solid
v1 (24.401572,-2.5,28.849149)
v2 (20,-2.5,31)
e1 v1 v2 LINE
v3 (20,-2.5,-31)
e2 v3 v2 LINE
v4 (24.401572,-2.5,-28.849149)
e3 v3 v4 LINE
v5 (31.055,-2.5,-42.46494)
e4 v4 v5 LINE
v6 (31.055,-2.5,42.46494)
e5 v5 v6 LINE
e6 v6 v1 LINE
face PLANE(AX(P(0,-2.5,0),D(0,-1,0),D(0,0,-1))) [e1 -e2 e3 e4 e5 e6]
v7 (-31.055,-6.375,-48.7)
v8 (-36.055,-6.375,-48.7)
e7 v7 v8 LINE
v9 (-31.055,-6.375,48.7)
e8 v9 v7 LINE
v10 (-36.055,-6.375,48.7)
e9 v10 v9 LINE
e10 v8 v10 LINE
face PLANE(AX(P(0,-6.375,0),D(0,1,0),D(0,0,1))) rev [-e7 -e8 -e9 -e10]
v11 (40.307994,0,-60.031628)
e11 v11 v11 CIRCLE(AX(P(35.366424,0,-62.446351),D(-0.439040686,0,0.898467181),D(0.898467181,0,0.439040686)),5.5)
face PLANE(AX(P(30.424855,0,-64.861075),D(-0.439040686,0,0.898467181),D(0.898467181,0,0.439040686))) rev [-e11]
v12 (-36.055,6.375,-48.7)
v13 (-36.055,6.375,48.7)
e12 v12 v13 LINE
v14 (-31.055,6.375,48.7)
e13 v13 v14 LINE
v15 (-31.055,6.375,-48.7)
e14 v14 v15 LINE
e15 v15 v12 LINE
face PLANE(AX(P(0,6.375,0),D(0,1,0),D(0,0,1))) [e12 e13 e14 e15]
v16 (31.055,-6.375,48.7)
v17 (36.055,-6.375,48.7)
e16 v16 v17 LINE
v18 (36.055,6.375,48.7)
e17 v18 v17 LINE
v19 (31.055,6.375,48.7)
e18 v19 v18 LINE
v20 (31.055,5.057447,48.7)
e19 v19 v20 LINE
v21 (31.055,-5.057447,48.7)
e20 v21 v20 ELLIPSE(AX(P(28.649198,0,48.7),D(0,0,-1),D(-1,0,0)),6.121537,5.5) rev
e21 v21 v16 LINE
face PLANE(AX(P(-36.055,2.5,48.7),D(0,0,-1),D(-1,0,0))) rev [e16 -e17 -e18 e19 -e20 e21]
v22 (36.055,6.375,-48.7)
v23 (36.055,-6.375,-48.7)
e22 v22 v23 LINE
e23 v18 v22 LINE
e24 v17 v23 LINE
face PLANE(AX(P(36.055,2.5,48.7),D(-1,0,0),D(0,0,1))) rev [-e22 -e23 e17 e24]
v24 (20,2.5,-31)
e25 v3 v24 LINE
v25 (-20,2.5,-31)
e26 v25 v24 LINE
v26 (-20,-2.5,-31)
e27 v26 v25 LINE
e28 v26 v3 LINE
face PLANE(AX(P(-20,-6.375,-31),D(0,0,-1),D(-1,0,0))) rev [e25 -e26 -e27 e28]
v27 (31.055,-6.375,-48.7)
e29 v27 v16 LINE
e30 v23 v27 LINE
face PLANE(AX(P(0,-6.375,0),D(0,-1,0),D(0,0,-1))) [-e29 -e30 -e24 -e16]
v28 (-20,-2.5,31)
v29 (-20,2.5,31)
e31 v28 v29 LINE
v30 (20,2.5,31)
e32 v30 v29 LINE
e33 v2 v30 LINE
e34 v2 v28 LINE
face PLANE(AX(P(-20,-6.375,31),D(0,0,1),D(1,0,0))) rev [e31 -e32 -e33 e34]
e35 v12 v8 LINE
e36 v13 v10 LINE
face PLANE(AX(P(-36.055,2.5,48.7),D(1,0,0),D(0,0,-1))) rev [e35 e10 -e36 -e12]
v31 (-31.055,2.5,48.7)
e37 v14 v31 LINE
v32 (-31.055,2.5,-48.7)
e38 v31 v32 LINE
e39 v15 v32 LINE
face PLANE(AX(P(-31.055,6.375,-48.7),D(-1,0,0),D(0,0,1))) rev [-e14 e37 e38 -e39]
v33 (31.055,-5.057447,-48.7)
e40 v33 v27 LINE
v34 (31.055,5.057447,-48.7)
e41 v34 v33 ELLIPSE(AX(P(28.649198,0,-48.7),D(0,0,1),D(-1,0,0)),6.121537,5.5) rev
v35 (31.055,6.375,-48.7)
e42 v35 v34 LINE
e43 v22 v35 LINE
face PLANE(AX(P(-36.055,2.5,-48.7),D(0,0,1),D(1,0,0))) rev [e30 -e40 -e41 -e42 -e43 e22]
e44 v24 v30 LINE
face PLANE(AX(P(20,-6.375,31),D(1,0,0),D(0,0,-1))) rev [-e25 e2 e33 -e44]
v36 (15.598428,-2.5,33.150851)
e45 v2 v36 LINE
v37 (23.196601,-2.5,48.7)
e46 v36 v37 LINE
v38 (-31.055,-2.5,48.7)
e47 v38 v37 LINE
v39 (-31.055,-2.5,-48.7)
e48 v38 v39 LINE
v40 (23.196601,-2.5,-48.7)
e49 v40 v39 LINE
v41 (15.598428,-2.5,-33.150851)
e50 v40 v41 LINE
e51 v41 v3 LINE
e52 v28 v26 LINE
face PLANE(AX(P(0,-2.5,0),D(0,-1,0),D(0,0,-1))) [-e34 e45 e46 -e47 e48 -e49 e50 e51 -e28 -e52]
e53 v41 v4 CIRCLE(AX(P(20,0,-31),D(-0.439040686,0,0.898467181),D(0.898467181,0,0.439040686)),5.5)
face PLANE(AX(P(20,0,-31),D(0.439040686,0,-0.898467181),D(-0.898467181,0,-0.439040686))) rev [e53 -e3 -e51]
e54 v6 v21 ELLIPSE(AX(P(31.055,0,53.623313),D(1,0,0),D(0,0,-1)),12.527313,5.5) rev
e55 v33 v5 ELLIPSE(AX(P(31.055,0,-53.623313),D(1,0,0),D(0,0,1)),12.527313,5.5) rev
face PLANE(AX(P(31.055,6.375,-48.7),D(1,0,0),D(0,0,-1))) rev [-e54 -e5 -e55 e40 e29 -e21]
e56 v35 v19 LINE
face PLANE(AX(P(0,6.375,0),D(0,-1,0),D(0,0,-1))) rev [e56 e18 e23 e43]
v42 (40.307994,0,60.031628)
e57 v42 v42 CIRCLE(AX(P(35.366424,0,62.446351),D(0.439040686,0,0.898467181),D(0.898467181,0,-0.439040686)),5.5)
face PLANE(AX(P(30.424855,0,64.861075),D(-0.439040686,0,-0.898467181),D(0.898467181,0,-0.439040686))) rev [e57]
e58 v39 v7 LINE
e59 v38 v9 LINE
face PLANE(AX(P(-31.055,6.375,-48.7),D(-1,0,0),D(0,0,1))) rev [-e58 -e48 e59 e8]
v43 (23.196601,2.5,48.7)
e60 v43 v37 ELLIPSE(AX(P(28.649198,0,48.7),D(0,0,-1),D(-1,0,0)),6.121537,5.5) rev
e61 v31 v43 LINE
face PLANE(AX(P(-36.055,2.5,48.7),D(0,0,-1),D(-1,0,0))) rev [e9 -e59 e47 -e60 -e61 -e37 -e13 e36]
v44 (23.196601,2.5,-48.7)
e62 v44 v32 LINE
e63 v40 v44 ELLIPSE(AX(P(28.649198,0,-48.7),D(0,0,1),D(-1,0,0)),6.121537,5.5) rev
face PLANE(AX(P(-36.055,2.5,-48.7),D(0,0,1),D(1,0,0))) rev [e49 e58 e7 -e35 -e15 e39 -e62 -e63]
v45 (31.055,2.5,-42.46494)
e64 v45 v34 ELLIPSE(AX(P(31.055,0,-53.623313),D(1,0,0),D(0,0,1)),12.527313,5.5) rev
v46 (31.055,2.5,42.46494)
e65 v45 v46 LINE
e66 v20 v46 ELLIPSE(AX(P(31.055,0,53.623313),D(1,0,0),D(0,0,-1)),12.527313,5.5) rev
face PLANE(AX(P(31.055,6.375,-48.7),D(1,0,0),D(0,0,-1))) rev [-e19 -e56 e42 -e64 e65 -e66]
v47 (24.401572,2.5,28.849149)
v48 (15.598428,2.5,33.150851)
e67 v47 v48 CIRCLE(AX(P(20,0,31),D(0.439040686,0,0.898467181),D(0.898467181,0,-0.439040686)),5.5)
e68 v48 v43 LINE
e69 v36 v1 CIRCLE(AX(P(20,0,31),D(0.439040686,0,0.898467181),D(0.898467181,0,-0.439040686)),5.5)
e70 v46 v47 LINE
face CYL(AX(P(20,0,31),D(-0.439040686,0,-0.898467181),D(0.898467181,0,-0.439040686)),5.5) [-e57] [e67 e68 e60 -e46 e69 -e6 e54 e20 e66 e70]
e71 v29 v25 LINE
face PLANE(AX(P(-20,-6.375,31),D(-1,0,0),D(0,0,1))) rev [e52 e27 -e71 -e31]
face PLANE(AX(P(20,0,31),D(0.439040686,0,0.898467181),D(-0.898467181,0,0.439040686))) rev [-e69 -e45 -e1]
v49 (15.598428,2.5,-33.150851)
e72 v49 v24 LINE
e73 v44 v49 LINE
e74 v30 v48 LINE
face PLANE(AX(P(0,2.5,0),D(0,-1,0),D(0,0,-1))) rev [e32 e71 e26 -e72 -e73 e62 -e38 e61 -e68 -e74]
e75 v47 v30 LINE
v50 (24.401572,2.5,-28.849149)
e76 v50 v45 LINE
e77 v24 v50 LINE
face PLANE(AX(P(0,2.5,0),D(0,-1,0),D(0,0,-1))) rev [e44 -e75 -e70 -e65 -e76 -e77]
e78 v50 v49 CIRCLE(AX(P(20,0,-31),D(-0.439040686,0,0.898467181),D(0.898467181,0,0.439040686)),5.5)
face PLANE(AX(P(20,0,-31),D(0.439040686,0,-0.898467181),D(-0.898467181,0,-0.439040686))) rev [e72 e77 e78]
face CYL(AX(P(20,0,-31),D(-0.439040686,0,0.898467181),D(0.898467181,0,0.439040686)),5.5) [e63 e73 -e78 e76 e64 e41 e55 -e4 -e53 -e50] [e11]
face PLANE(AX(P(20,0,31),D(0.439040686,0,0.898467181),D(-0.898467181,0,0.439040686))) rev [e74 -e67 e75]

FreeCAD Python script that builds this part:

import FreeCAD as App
import Part
import Sketcher

V = App.Vector

doc = App.newDocument("Part")
body = doc.addObject("PartDesign::Body", "Body")

sketch1 = body.newObject("Sketcher::SketchObject", "Sketch")
sketch1.AttachmentSupport = (doc.getObject("XZ_Plane"), [""])
sketch1.MapMode = "FlatFace"
sketch1.addGeometry([
    Part.LineSegment(V(-36, -49, 0), V(-36, 49, 0)),
    Part.LineSegment(V(-36, 49, 0), V(36, 49, 0)),
    Part.LineSegment(V(36, 49, 0), V(36, -49, 0)),
    Part.LineSegment(V(36, -49, 0), V(-36, -49, 0)),
], False)
sketch1.addConstraint([
    Sketcher.Constraint("Coincident", 0, 2, 1, 1),
    Sketcher.Constraint("Coincident", 1, 2, 2, 1),
    Sketcher.Constraint("Coincident", 2, 2, 3, 1),
    Sketcher.Constraint("Coincident", 3, 2, 0, 1),
    Sketcher.Constraint("Vertical", 0),
    Sketcher.Constraint("Horizontal", 1),
    Sketcher.Constraint("Vertical", 2),
    Sketcher.Constraint("Horizontal", 3),
    Sketcher.Constraint("Symmetric", 0, 2, 2, 2, -1, 1),
    Sketcher.Constraint("DistanceY", 0, 1, 0, 2, 97.4),
    Sketcher.Constraint("DistanceX", 1, 1, 1, 2, 72.11),
])
pad1 = body.newObject("PartDesign::Pad", "Pad")
pad1.Profile = sketch1
pad1.Length = 5
pad1.Midplane = True

sketch2 = body.newObject("Sketcher::SketchObject", "Sketch001")
sketch2.AttachmentSupport = (doc.getObject("XZ_Plane"), [""])
sketch2.MapMode = "FlatFace"
sketch2.addGeometry([
    Part.LineSegment(V(-36, -49, 0), V(-36, 49, 0)),
    Part.LineSegment(V(-36, 49, 0), V(-31, 49, 0)),
    Part.LineSegment(V(-31, 49, 0), V(-31, -49, 0)),
    Part.LineSegment(V(-31, -49, 0), V(-36, -49, 0)),
    Part.LineSegment(V(31, -49, 0), V(31, 49, 0)),
    Part.LineSegment(V(31, 49, 0), V(36, 49, 0)),
    Part.LineSegment(V(36, 49, 0), V(36, -49, 0)),
    Part.LineSegment(V(36, -49, 0), V(31, -49, 0)),
], False)
sketch2.addConstraint([
    Sketcher.Constraint("Coincident", 0, 2, 1, 1),
    Sketcher.Constraint("Coincident", 1, 2, 2, 1),
    Sketcher.Constraint("Coincident", 2, 2, 3, 1),
    Sketcher.Constraint("Coincident", 3, 2, 0, 1),
    Sketcher.Constraint("Coincident", 4, 2, 5, 1),
    Sketcher.Constraint("Coincident", 5, 2, 6, 1),
    Sketcher.Constraint("Coincident", 6, 2, 7, 1),
    Sketcher.Constraint("Coincident", 7, 2, 4, 1),
    Sketcher.Constraint("Vertical", 0),
    Sketcher.Constraint("Horizontal", 1),
    Sketcher.Constraint("Vertical", 2),
    Sketcher.Constraint("Horizontal", 3),
    Sketcher.Constraint("Vertical", 4),
    Sketcher.Constraint("Horizontal", 5),
    Sketcher.Constraint("Vertical", 6),
    Sketcher.Constraint("Horizontal", 7),
    Sketcher.Constraint("Symmetric", 2, 2, 4, 2, -1, 1),
    Sketcher.Constraint("Symmetric", 0, 2, 6, 2, -1, 1),
    Sketcher.Constraint("Horizontal", 1, 2, 4, 2),
    Sketcher.Constraint("DistanceX", 1, 1, 1, 2, 5.0),
    Sketcher.Constraint("DistanceY", 0, 1, 0, 2, 97.4),
    Sketcher.Constraint("DistanceX", 1, 2, 4, 2, 62.11),
])
pad2 = body.newObject("PartDesign::Pad", "Pad001")
pad2.Profile = sketch2
pad2.Length = 12.75
pad2.Midplane = True

sketch3 = body.newObject("Sketcher::SketchObject", "Sketch002")
sketch3.AttachmentSupport = (doc.getObject("XZ_Plane"), [""])
sketch3.MapMode = "FlatFace"
sketch3.AttachmentOffset = App.Placement(V(0, 0, -2.5), App.Rotation())
sketch3.addGeometry([
    Part.LineSegment(V(-20, -31, 0), V(-20, 31, 0)),
    Part.LineSegment(V(-20, 31, 0), V(20, 31, 0)),
    Part.LineSegment(V(20, 31, 0), V(20, -31, 0)),
    Part.LineSegment(V(20, -31, 0), V(-20, -31, 0)),
], False)
sketch3.addConstraint([
    Sketcher.Constraint("Coincident", 0, 2, 1, 1),
    Sketcher.Constraint("Coincident", 1, 2, 2, 1),
    Sketcher.Constraint("Coincident", 2, 2, 3, 1),
    Sketcher.Constraint("Coincident", 3, 2, 0, 1),
    Sketcher.Constraint("Vertical", 0),
    Sketcher.Constraint("Horizontal", 1),
    Sketcher.Constraint("Vertical", 2),
    Sketcher.Constraint("Horizontal", 3),
    Sketcher.Constraint("Symmetric", 0, 2, 2, 2, -1, 1),
    Sketcher.Constraint("DistanceX", 1, 1, 1, 2, 40.0),
    Sketcher.Constraint("DistanceY", 0, 1, 0, 2, 62.0),
])
pocket1 = body.newObject("PartDesign::Pocket", "Pocket")
pocket1.Profile = sketch3
pocket1.Type = "ThroughAll"
pocket1.Midplane = True

sketch4 = body.newObject("Sketcher::SketchObject", "Sketch003")
sketch4.AttachmentSupport = (doc.getObject("XZ_Plane"), [""])
sketch4.MapMode = "FlatFace"
sketch4.addGeometry([
    Part.LineSegment(V(15, -33, 0), V(20, -31, 0)),
    Part.LineSegment(V(20, -31, 0), V(35, -62, 0)),
    Part.LineSegment(V(35, -62, 0), V(30, -65, 0)),
    Part.LineSegment(V(30, -65, 0), V(15, -33, 0)),
], False)
sketch4.addGeometry(Part.LineSegment(V(20, -31, 0), V(35, -62, 0)), True)
sketch4.addConstraint([
    Sketcher.Constraint("Coincident", 0, 2, 1, 1),
    Sketcher.Constraint("Coincident", 1, 2, 2, 1),
    Sketcher.Constraint("Coincident", 2, 2, 3, 1),
    Sketcher.Constraint("Coincident", 3, 2, 0, 1),
    Sketcher.Constraint("Coincident", 4, 1, 0, 2),
    Sketcher.Constraint("Coincident", 4, 2, 1, 2),
    Sketcher.Constraint("Perpendicular", 0, 1),
    Sketcher.Constraint("Perpendicular", 1, 2),
    Sketcher.Constraint("Perpendicular", 2, 3),
    Sketcher.Constraint("Distance", 1, 35.0),
    Sketcher.Constraint("DistanceX", -1, 1, 0, 2, 20.0),
    Sketcher.Constraint("DistanceY", 0, 2, -1, 1, 31.0),
    Sketcher.Constraint("Distance", 0, 5.5),
    Sketcher.Constraint("DistanceY", 1, 2, -1, 1, 62.446351),
])
revolution = body.newObject("PartDesign::Revolution", "Revolution")
revolution.Profile = sketch4
revolution.ReferenceAxis = (sketch4, ["Axis0"])
revolution.Angle = 360
doc.recompute()

mirrored = body.newObject("PartDesign::Mirrored", "Mirrored")
mirrored.Originals = [revolution]
mirrored.MirrorPlane = (doc.getObject("XY_Plane"), [""])
body.Tip = mirrored

doc.recompute()
